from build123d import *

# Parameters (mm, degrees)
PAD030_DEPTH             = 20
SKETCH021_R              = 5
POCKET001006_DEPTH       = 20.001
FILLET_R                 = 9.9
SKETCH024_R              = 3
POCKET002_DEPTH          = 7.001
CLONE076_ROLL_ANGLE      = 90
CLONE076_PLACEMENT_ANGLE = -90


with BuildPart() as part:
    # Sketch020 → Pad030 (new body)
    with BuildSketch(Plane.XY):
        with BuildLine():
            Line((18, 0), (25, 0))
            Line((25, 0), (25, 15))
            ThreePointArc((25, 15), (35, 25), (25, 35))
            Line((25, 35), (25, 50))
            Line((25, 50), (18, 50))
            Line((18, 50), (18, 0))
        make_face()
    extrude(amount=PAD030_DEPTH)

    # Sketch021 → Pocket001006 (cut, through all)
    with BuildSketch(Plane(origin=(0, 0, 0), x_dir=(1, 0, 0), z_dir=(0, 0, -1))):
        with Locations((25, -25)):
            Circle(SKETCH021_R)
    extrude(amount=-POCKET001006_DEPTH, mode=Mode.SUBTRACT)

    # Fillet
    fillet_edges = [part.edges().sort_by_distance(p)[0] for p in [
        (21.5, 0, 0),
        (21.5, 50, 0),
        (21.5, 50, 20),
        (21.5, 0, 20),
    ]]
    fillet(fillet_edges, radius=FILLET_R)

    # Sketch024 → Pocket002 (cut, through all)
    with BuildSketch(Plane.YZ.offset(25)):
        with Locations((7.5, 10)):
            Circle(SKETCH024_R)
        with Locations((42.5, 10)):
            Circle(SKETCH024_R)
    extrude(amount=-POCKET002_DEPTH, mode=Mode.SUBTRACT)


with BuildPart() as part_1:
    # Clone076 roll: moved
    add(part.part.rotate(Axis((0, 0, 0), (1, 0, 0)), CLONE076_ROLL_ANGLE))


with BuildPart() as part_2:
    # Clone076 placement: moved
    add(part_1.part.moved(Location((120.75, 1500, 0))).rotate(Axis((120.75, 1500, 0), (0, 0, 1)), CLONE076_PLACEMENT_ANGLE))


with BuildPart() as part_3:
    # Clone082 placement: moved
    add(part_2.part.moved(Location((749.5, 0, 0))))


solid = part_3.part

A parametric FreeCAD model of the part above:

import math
import FreeCAD as App
import Part
import Sketcher

V = App.Vector
Q = App.Units.Quantity


def edges_at(feature, points):
    """Names of the edges that pass closest to the given points."""
    edges = feature.Shape.Edges
    near = lambda p: min(range(len(edges)), key=lambda i: edges[i].distToShape(Part.Vertex(*p))[0])
    return sorted({f"Edge{near(p) + 1}" for p in points})

doc = App.newDocument("Part")
body = doc.addObject("PartDesign::Body", "Body")

# Sketch on XY plane
sketch1 = body.newObject("Sketcher::SketchObject", "Sketch")
sketch1.AttachmentSupport = (doc.getObject("XY_Plane"), [""])
sketch1.MapMode = "FlatFace"
sketch1.addGeometry(Part.LineSegment(V(18, 0, 0), V(25, 0, 0)), False)
sketch1.addGeometry(Part.LineSegment(V(25, 0, 0), V(25, 15, 0)), False)
sketch1.addGeometry(Part.ArcOfCircle(Part.Circle(V(25, 25, 0), V(0, 0, 1), 10), math.radians(-90), math.radians(90)), False)
sketch1.addGeometry(Part.LineSegment(V(25, 35, 0), V(25, 50, 0)), False)
sketch1.addGeometry(Part.LineSegment(V(25, 50, 0), V(18, 50, 0)), False)
sketch1.addGeometry(Part.LineSegment(V(18, 50, 0), V(18, 0, 0)), False)
sketch1.addConstraint(Sketcher.Constraint("Coincident", 0, 2, 1, 1))
sketch1.addConstraint(Sketcher.Constraint("Coincident", 1, 2, 2, 1))
sketch1.addConstraint(Sketcher.Constraint("Coincident", 2, 2, 3, 1))
sketch1.addConstraint(Sketcher.Constraint("Coincident", 3, 2, 4, 1))
sketch1.addConstraint(Sketcher.Constraint("Coincident", 4, 2, 5, 1))
sketch1.addConstraint(Sketcher.Constraint("Coincident", 5, 2, 0, 1))
sketch1.addConstraint(Sketcher.Constraint("Horizontal", 0))
sketch1.addConstraint(Sketcher.Constraint("Vertical", 1))
sketch1.addConstraint(Sketcher.Constraint("Vertical", 3))
sketch1.addConstraint(Sketcher.Constraint("Horizontal", 4))
sketch1.addConstraint(Sketcher.Constraint("Vertical", 5))
sketch1.addConstraint(Sketcher.Constraint("PointOnObject", 0, 2, -1))
sketch1.addConstraint(Sketcher.Constraint("Vertical", 2, 3, 0, 2))
sketch1.addConstraint(Sketcher.Constraint("Vertical", 1, 2, 2, 2))
sketch1.addConstraint(Sketcher.Constraint("Equal", 1, 3))
sketch1.addConstraint(Sketcher.Constraint("Radius", 2, Q("10 mm")))
sketch1.addConstraint(Sketcher.Constraint("DistanceX", 0, 1, 0, 2, Q("7 mm")))
sketch1.addConstraint(Sketcher.Constraint("DistanceY", 1, 1, 1, 2, Q("15 mm")))
sketch1.addConstraint(Sketcher.Constraint("DistanceX", -1, 1, 2, 3, Q("25 mm")))
pad1 = body.newObject("PartDesign::Pad", "Pad")
pad1.Profile = sketch1
pad1.Length = 20

# Sketch on XY plane
sketch2 = body.newObject("Sketcher::SketchObject", "Sketch001")
sketch2.AttachmentSupport = (doc.getObject("XY_Plane"), [""])
sketch2.MapMode = "FlatFace"
sketch2.addGeometry(Part.Circle(V(25, 25, 0), V(0, 0, 1), 5), False)
sketch2.addConstraint(Sketcher.Constraint("Diameter", 0, Q("10 mm")))
sketch2.addConstraint(Sketcher.Constraint("DistanceX", -1, 1, 0, 3, Q("25 mm")))
sketch2.addConstraint(Sketcher.Constraint("DistanceY", -1, 1, 0, 3, Q("25 mm")))
pocket1 = body.newObject("PartDesign::Pocket", "Pocket")
pocket1.Profile = sketch2
pocket1.Type = "ThroughAll"
pocket1.Reversed = True
doc.recompute()

fillet = body.newObject("PartDesign::Fillet", "Fillet")
fillet.Base = (pocket1, edges_at(pocket1, [
    (21.5, 0, 0),
    (21.5, 50, 0),
    (21.5, 50, 20),
    (21.5, 0, 20),
]))
fillet.Radius = 9.9

# Sketch on YZ plane
sketch3 = body.newObject("Sketcher::SketchObject", "Sketch002")
sketch3.AttachmentSupport = (doc.getObject("YZ_Plane"), [""])
sketch3.MapMode = "FlatFace"
sketch3.AttachmentOffset = App.Placement(V(0, 0, 25), App.Rotation())
sketch3.addGeometry(Part.Circle(V(7.5, 10, 0), V(0, 0, 1), 3), False)
sketch3.addGeometry(Part.Circle(V(42.5, 10, 0), V(0, 0, 1), 3), False)
sketch3.addConstraint(Sketcher.Constraint("Equal", 0, 1))
sketch3.addConstraint(Sketcher.Constraint("Horizontal", 0, 3, 1, 3))
sketch3.addConstraint(Sketcher.Constraint("Diameter", 0, Q("6 mm")))
sketch3.addConstraint(Sketcher.Constraint("DistanceY", -1, 1, 0, 3, Q("10 mm")))
sketch3.addConstraint(Sketcher.Constraint("DistanceX", 0, 3, 1, 3, Q("35 mm")))
sketch3.addConstraint(Sketcher.Constraint("DistanceX", -1, 1, 0, 3, Q("7.5 mm")))
pocket2 = body.newObject("PartDesign::Pocket", "Pocket001")
pocket2.Profile = sketch3
pocket2.Type = "ThroughAll"
body2 = doc.addObject("PartDesign::Body", "Body001")
doc.recompute()

body.Placement = App.Placement(V(0, 0, 0), App.Rotation(V(1, 0, 0), 90))
boolean = body2.newObject("PartDesign::Boolean", "Boolean")
boolean.Type = "Fuse"
boolean.addObjects([body])
body3 = doc.addObject("PartDesign::Body", "Body002")
doc.recompute()

body2.Placement = App.Placement(V(120.75, 1500, 0), App.Rotation(V(0, 0, 1), 270))
boolean2 = body3.newObject("PartDesign::Boolean", "Boolean001")
boolean2.Type = "Fuse"
boolean2.addObjects([body2])
body4 = doc.addObject("PartDesign::Body", "Body003")
doc.recompute()

body3.Placement = App.Placement(V(749.5, 0, 0), App.Rotation(V(0, 0, 1), 0))
boolean3 = body4.newObject("PartDesign::Boolean", "Boolean002")
boolean3.Type = "Fuse"
boolean3.addObjects([body3])

doc.recompute()
